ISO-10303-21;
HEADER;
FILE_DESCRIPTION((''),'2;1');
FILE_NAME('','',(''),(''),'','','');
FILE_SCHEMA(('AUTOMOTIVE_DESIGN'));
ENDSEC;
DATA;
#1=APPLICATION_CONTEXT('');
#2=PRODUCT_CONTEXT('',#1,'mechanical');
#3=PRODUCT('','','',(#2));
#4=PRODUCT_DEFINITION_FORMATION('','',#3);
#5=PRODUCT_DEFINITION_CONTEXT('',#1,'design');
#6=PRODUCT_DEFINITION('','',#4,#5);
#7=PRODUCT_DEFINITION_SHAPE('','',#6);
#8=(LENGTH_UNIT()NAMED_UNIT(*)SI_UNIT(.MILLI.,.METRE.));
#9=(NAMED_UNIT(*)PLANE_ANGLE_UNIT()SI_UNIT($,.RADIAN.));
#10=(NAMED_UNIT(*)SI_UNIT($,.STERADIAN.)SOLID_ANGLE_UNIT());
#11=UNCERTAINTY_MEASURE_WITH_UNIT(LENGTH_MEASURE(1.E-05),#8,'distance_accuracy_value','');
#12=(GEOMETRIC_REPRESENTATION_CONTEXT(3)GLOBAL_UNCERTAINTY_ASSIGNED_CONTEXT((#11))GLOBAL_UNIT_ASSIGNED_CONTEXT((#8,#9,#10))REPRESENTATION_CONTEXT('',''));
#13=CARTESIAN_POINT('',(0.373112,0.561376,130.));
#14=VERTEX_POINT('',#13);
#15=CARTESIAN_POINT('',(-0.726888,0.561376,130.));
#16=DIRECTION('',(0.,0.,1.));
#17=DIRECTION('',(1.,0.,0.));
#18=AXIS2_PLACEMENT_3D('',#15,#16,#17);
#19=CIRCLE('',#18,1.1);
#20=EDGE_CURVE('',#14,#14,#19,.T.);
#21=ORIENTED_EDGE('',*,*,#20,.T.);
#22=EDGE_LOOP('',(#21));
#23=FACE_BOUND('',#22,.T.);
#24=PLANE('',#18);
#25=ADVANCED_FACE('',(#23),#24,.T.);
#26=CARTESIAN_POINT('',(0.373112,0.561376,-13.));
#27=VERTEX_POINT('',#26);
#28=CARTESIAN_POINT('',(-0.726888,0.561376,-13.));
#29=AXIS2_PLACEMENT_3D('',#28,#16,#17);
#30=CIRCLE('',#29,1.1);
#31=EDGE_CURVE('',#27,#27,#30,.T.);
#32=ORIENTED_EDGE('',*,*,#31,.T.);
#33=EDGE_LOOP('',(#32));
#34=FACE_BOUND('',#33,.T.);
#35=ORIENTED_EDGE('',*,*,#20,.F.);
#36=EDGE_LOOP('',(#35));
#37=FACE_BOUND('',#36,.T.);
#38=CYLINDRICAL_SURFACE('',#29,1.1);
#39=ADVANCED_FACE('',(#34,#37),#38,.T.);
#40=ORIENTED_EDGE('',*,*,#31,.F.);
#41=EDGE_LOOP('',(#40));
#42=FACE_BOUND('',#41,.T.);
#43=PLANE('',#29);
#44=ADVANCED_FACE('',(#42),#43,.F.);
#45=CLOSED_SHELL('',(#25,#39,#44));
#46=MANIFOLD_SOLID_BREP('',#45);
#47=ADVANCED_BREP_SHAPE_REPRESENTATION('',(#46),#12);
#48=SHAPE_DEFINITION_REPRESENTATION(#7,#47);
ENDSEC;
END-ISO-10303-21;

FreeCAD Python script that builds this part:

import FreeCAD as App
import Part
import Sketcher
from FreeCAD import Vector

doc = App.newDocument("Part")
body = doc.addObject("PartDesign::Body", "Body")

sketch1 = body.newObject("Sketcher::SketchObject", "Sketch")
sketch1.AttachmentSupport = (doc.getObject("XY_Plane"), [""])
sketch1.MapMode = "FlatFace"
sketch1.addGeometry(Part.Circle(Vector(-0.7, 0.6, 0), Vector(0, 0, 1), 1.1), False)
sketch1.addConstraint(Sketcher.Constraint("Diameter", 0, 2.2))
sketch1.addConstraint(Sketcher.Constraint("DistanceX", 0, 3, -1, 1, 0.726888))
sketch1.addConstraint(Sketcher.Constraint("DistanceY", -1, 1, 0, 3, 0.561376))
pad1 = body.newObject("PartDesign::Pad", "Pad")
pad1.Profile = sketch1
pad1.Type = "TwoLengths"
pad1.Length = 130
pad1.Length2 = 13

doc.recompute()
